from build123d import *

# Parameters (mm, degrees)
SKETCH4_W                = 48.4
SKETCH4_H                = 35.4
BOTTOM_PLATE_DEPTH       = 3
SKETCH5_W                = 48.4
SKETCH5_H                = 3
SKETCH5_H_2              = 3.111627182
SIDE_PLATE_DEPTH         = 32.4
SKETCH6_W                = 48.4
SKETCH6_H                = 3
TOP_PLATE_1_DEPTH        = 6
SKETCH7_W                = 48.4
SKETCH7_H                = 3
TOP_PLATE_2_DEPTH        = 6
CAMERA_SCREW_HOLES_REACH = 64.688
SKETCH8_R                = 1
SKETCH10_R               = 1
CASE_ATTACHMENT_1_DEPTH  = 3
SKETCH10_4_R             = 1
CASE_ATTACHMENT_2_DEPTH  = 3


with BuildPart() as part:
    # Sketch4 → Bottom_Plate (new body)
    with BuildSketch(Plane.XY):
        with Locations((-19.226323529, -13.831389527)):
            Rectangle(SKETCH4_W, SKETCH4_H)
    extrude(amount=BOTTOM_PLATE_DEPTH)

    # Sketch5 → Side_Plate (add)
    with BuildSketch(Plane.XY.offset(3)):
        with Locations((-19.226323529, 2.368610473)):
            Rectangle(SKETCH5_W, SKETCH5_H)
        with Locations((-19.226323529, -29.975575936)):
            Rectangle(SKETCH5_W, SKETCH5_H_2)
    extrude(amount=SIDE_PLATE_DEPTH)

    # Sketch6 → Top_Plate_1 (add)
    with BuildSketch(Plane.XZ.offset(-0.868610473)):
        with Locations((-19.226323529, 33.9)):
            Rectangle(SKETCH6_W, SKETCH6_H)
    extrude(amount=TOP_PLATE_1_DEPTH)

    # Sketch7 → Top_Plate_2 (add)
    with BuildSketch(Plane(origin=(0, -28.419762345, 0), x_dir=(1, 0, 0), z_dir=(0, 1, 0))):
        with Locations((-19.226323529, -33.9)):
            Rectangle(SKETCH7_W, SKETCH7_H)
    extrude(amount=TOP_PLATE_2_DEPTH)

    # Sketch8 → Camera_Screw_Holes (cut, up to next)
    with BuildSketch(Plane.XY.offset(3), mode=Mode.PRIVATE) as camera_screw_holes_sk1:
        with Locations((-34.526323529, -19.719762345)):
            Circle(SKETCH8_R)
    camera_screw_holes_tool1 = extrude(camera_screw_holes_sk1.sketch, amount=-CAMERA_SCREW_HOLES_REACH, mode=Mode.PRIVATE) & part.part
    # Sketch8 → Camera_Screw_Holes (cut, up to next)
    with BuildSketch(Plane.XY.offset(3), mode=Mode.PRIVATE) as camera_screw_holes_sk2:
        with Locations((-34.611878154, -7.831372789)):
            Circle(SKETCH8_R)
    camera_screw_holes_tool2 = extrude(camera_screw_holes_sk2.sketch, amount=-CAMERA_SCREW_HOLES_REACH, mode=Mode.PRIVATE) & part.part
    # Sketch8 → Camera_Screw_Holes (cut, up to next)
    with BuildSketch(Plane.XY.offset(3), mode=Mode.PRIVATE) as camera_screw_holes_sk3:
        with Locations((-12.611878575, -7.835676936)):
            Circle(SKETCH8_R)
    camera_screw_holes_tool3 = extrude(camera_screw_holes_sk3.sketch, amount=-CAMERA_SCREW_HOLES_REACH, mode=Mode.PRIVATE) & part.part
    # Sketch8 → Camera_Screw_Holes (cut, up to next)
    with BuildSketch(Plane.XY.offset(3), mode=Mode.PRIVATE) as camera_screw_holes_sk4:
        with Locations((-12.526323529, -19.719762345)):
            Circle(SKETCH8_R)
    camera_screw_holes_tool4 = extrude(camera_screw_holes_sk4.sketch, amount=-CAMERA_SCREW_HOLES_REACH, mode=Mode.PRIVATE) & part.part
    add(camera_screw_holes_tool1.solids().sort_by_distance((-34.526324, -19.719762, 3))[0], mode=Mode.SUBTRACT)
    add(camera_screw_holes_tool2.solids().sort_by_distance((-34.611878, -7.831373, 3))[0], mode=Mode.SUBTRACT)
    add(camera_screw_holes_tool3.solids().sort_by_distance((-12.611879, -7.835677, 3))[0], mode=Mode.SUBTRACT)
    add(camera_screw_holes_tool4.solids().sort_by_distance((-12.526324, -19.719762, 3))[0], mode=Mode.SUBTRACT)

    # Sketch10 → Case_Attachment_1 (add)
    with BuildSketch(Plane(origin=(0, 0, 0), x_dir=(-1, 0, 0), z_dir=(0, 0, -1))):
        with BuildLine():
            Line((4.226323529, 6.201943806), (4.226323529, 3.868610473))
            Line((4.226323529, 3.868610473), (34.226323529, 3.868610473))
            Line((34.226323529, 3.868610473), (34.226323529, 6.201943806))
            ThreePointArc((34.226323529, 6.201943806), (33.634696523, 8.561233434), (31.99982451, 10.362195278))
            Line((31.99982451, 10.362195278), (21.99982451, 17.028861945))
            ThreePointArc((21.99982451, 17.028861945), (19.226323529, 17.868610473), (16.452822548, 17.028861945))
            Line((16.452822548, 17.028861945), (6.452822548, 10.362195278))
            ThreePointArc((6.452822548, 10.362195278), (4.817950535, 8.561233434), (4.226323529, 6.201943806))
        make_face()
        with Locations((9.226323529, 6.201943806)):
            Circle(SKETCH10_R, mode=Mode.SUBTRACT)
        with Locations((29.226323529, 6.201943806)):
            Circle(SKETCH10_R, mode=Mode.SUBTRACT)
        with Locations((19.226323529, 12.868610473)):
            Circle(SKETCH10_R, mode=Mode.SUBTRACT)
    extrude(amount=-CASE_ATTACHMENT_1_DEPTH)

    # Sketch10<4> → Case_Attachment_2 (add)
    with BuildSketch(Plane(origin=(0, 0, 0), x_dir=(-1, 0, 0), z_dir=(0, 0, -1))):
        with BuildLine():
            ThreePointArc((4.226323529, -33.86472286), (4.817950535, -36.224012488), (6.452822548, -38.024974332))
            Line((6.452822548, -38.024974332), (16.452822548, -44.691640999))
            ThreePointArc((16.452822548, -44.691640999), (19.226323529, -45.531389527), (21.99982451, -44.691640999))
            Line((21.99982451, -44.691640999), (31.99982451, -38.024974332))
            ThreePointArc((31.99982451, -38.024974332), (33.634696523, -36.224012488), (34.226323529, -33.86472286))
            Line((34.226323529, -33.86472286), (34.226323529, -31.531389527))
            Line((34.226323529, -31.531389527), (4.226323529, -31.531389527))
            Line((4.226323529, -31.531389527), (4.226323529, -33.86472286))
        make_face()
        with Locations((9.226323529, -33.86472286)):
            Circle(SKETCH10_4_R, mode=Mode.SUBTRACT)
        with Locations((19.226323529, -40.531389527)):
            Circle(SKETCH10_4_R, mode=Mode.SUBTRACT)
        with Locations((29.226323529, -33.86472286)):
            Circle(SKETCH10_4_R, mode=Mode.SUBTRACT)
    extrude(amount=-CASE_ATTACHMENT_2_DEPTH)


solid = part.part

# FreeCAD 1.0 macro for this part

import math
import FreeCAD as App
import Part
import Sketcher
from FreeCAD import Vector
Q = App.Units.Quantity


def add_polygon(sketch, points):
    """Adds a closed chain of lines whose ends are joined by coincident constraints."""
    first, n = sketch.GeometryCount, len(points)
    for a, b in zip(points, points[1:] + points[:1]):
        sketch.addGeometry(Part.LineSegment(App.Vector(*a, 0), App.Vector(*b, 0)), False)
    for i in range(n):
        sketch.addConstraint(Sketcher.Constraint("Coincident", first + i, 2, first + (i + 1) % n, 1))

doc = App.newDocument("Part")
body = doc.addObject("PartDesign::Body", "Body")

# Sketch on XY plane
sketch1 = body.newObject("Sketcher::SketchObject", "Sketch")
sketch1.AttachmentSupport = (doc.getObject("XY_Plane"), [""])
sketch1.MapMode = "FlatFace"
add_polygon(sketch1, [(-43, 4), (-43, -32), (5, -32), (5, 4)])  # lines 0-3
sketch1.addConstraint([
    Sketcher.Constraint("Vertical", 0),
    Sketcher.Constraint("Horizontal", 1),
    Sketcher.Constraint("Vertical", 2),
    Sketcher.Constraint("Horizontal", 3),
    Sketcher.Constraint("DistanceX", 1, 1, 1, 2, Q("48.4 mm")),
    Sketcher.Constraint("DistanceY", 0, 2, 0, 1, Q("35.4 mm")),
    Sketcher.Constraint("DistanceY", 0, 2, -1, 1, Q("31.53139 mm")),
    Sketcher.Constraint("DistanceX", 0, 2, -1, 1, Q("43.426324 mm")),
])
pad1 = body.newObject("PartDesign::Pad", "Pad")
pad1.Profile = sketch1
pad1.Length = 3

# Sketch on XY plane
sketch2 = body.newObject("Sketcher::SketchObject", "Sketch001")
sketch2.AttachmentSupport = (doc.getObject("XY_Plane"), [""])
sketch2.MapMode = "FlatFace"
sketch2.AttachmentOffset = App.Placement(Vector(0, 0, 3), App.Rotation())
add_polygon(sketch2, [(-43.4, 3.9), (-43.4, 0.9), (5, 0.9), (5, 3.9)])  # lines 0-3
add_polygon(sketch2, [(-43.4, -28.4), (-43.4, -31.5), (5, -31.5), (5, -28.4)])  # lines 4-7
sketch2.addConstraint([
    Sketcher.Constraint("Vertical", 0),
    Sketcher.Constraint("Horizontal", 1),
    Sketcher.Constraint("Vertical", 2),
    Sketcher.Constraint("Horizontal", 3),
    Sketcher.Constraint("Vertical", 4),
    Sketcher.Constraint("Horizontal", 5),
    Sketcher.Constraint("Vertical", 6),
    Sketcher.Constraint("Horizontal", 7),
    Sketcher.Constraint("Vertical", 3, 2, 4, 2),
    Sketcher.Constraint("Vertical", 2, 2, 5, 2),
    Sketcher.Constraint("DistanceY", 0, 2, 0, 1, Q("3 mm")),
    Sketcher.Constraint("DistanceX", 1, 1, 1, 2, Q("48.4 mm")),
    Sketcher.Constraint("DistanceY", 4, 2, 0, 2, Q("32.4 mm")),
    Sketcher.Constraint("DistanceY", 4, 2, 4, 1, Q("3.111627 mm")),
    Sketcher.Constraint("DistanceY", -1, 1, 0, 2, Q("0.86861 mm")),
    Sketcher.Constraint("DistanceX", 0, 2, -1, 1, Q("43.426324 mm")),
])
pad2 = body.newObject("PartDesign::Pad", "Pad001")
pad2.Profile = sketch2
pad2.Length = 32.4

# Sketch on XZ plane
sketch3 = body.newObject("Sketcher::SketchObject", "Sketch002")
sketch3.AttachmentSupport = (doc.getObject("XZ_Plane"), [""])
sketch3.MapMode = "FlatFace"
sketch3.AttachmentOffset = App.Placement(Vector(0, 0, -0.86861), App.Rotation())
add_polygon(sketch3, [(-43.4, 35.4), (-43.4, 32.4), (5, 32.4), (5, 35.4)])  # lines 0-3
sketch3.addConstraint([
    Sketcher.Constraint("Vertical", 0),
    Sketcher.Constraint("Horizontal", 1),
    Sketcher.Constraint("Vertical", 2),
    Sketcher.Constraint("Horizontal", 3),
    Sketcher.Constraint("DistanceY", 0, 2, 0, 1, Q("3 mm")),
    Sketcher.Constraint("DistanceX", 1, 1, 1, 2, Q("48.4 mm")),
    Sketcher.Constraint("DistanceY", -1, 1, 0, 2, Q("32.4 mm")),
    Sketcher.Constraint("DistanceX", 0, 2, -1, 1, Q("43.426324 mm")),
])
pad3 = body.newObject("PartDesign::Pad", "Pad002")
pad3.Profile = sketch3
pad3.Length = 6

# Sketch on XZ plane
sketch4 = body.newObject("Sketcher::SketchObject", "Sketch003")
sketch4.AttachmentSupport = (doc.getObject("XZ_Plane"), [""])
sketch4.MapMode = "FlatFace"
sketch4.AttachmentOffset = App.Placement(Vector(0, 0, 28.419762), App.Rotation())
add_polygon(sketch4, [(-43.4, 32.4), (-43.4, 35.4), (5, 35.4), (5, 32.4)])  # lines 0-3
sketch4.addConstraint([
    Sketcher.Constraint("Vertical", 0),
    Sketcher.Constraint("Horizontal", 1),
    Sketcher.Constraint("Vertical", 2),
    Sketcher.Constraint("Horizontal", 3),
    Sketcher.Constraint("DistanceY", 0, 1, 0, 2, Q("3 mm")),
    Sketcher.Constraint("DistanceX", 1, 1, 1, 2, Q("48.4 mm")),
    Sketcher.Constraint("DistanceY", -1, 1, 0, 2, Q("35.4 mm")),
    Sketcher.Constraint("DistanceX", 0, 2, -1, 1, Q("43.426324 mm")),
])
pad4 = body.newObject("PartDesign::Pad", "Pad003")
pad4.Profile = sketch4
pad4.Length = 6
pad4.Reversed = True

# Sketch on XY plane
sketch5 = body.newObject("Sketcher::SketchObject", "Sketch004")
sketch5.AttachmentSupport = (doc.getObject("XY_Plane"), [""])
sketch5.MapMode = "FlatFace"
sketch5.AttachmentOffset = App.Placement(Vector(0, 0, 3), App.Rotation())
sketch5.addGeometry(Part.Circle(Vector(-34.5, -19.7, 0), Vector(0, 0, 1), 1), False)
sketch5.addConstraint([
    Sketcher.Constraint("Diameter", 0, Q("2 mm")),
    Sketcher.Constraint("DistanceX", 0, 3, -1, 1, Q("34.526324 mm")),
    Sketcher.Constraint("DistanceY", 0, 3, -1, 1, Q("19.719762 mm")),
])
pocket1 = body.newObject("PartDesign::Pocket", "Pocket")
pocket1.Profile = sketch5
pocket1.Type = "UpToFirst"

# Sketch on XY plane
sketch6 = body.newObject("Sketcher::SketchObject", "Sketch005")
sketch6.AttachmentSupport = (doc.getObject("XY_Plane"), [""])
sketch6.MapMode = "FlatFace"
sketch6.AttachmentOffset = App.Placement(Vector(0, 0, 3), App.Rotation())
sketch6.addGeometry(Part.Circle(Vector(-34.6, -7.8, 0), Vector(0, 0, 1), 1), False)
sketch6.addConstraint([
    Sketcher.Constraint("Diameter", 0, Q("2 mm")),
    Sketcher.Constraint("DistanceX", 0, 3, -1, 1, Q("34.611878 mm")),
    Sketcher.Constraint("DistanceY", 0, 3, -1, 1, Q("7.831373 mm")),
])
pocket2 = body.newObject("PartDesign::Pocket", "Pocket001")
pocket2.Profile = sketch6
pocket2.Type = "UpToFirst"

# Sketch on XY plane
sketch7 = body.newObject("Sketcher::SketchObject", "Sketch006")
sketch7.AttachmentSupport = (doc.getObject("XY_Plane"), [""])
sketch7.MapMode = "FlatFace"
sketch7.AttachmentOffset = App.Placement(Vector(0, 0, 3), App.Rotation())
sketch7.addGeometry(Part.Circle(Vector(-12.6, -7.8, 0), Vector(0, 0, 1), 1), False)
sketch7.addConstraint([
    Sketcher.Constraint("Diameter", 0, Q("2 mm")),
    Sketcher.Constraint("DistanceX", 0, 3, -1, 1, Q("12.611879 mm")),
    Sketcher.Constraint("DistanceY", 0, 3, -1, 1, Q("7.835677 mm")),
])
pocket3 = body.newObject("PartDesign::Pocket", "Pocket002")
pocket3.Profile = sketch7
pocket3.Type = "UpToFirst"

# Sketch on XY plane
sketch8 = body.newObject("Sketcher::SketchObject", "Sketch007")
sketch8.AttachmentSupport = (doc.getObject("XY_Plane"), [""])
sketch8.MapMode = "FlatFace"
sketch8.AttachmentOffset = App.Placement(Vector(0, 0, 3), App.Rotation())
sketch8.addGeometry(Part.Circle(Vector(-12.5, -19.7, 0), Vector(0, 0, 1), 1), False)
sketch8.addConstraint([
    Sketcher.Constraint("Diameter", 0, Q("2 mm")),
    Sketcher.Constraint("DistanceX", 0, 3, -1, 1, Q("12.526324 mm")),
    Sketcher.Constraint("DistanceY", 0, 3, -1, 1, Q("19.719762 mm")),
])
pocket4 = body.newObject("PartDesign::Pocket", "Pocket003")
pocket4.Profile = sketch8
pocket4.Type = "UpToFirst"

# Sketch on XY plane
sketch9 = body.newObject("Sketcher::SketchObject", "Sketch008")
sketch9.AttachmentSupport = (doc.getObject("XY_Plane"), [""])
sketch9.MapMode = "FlatFace"
sketch9.addGeometry([
    Part.LineSegment(Vector(-4.2, 6.2, 0), Vector(-4.2, 3.9, 0)),  # 0
    Part.LineSegment(Vector(-4.2, 3.9, 0), Vector(-34.2, 3.9, 0)),  # 1
    Part.LineSegment(Vector(-34.2, 3.9, 0), Vector(-34.2, 6.2, 0)),  # 2
    Part.ArcOfCircle(Part.Circle(Vector(-29.2, 6.2, 0), Vector(0, 0, 1), 5), math.radians(124), math.radians(180)),  # 3
    Part.LineSegment(Vector(-32, 10.4, 0), Vector(-22, 17, 0)),  # 4
    Part.ArcOfCircle(Part.Circle(Vector(-19.2, 12.9, 0), Vector(0, 0, 1), 5), math.radians(56), math.radians(124)),  # 5
    Part.LineSegment(Vector(-16.5, 17, 0), Vector(-6.5, 10.4, 0)),  # 6
    Part.ArcOfCircle(Part.Circle(Vector(-9.2, 6.2, 0), Vector(0, 0, 1), 5), math.radians(0), math.radians(56)),  # 7
    Part.Circle(Vector(-9.2, 6.2, 0), Vector(0, 0, 1), 1),  # 8
    Part.Circle(Vector(-29.2, 6.2, 0), Vector(0, 0, 1), 1),  # 9
    Part.Circle(Vector(-19.2, 12.9, 0), Vector(0, 0, 1), 1),  # 10
], False)
sketch9.addConstraint([
    Sketcher.Constraint("Coincident", 0, 2, 1, 1),
    Sketcher.Constraint("Coincident", 1, 2, 2, 1),
    Sketcher.Constraint("Tangent", 2, 2, 3, 2),
    Sketcher.Constraint("Tangent", 3, 1, 4, 1),
    Sketcher.Constraint("Tangent", 4, 2, 5, 2),
    Sketcher.Constraint("Tangent", 5, 1, 6, 1),
    Sketcher.Constraint("Tangent", 6, 2, 7, 2),
    Sketcher.Constraint("Tangent", 7, 1, 0, 1),
    Sketcher.Constraint("Vertical", 0),
    Sketcher.Constraint("Horizontal", 1),
    Sketcher.Constraint("Vertical", 2),
    Sketcher.Constraint("Coincident", 8, 3, 7, 3),
    Sketcher.Constraint("Coincident", 9, 3, 3, 3),
    Sketcher.Constraint("Coincident", 10, 3, 5, 3),
    Sketcher.Constraint("Equal", 3, 5),
    Sketcher.Constraint("Equal", 5, 7),
    Sketcher.Constraint("Equal", 8, 9),
    Sketcher.Constraint("Equal", 9, 10),
    Sketcher.Constraint("Horizontal", 3, 3, 7, 3),
    Sketcher.Constraint("Horizontal", 4, 2, 5, 1),
    Sketcher.Constraint("Diameter", 8, Q("2 mm")),
    Sketcher.Constraint("Radius", 3, Q("5 mm")),
    Sketcher.Constraint("DistanceX", 1, 2, 1, 1, Q("30 mm")),
    Sketcher.Constraint("DistanceY", 0, 2, 5, 3, Q("9 mm")),
    Sketcher.Constraint("DistanceX", 4, 2, 5, 1, Q("5.547002 mm")),
    Sketcher.Constraint("DistanceY", -1, 1, 5, 3, Q("12.86861 mm")),
    Sketcher.Constraint("DistanceX", 3, 3, -1, 1, Q("29.226324 mm")),
])
pad5 = body.newObject("PartDesign::Pad", "Pad004")
pad5.Profile = sketch9
pad5.Length = 3

# Sketch on XY plane
sketch10 = body.newObject("Sketcher::SketchObject", "Sketch009")
sketch10.AttachmentSupport = (doc.getObject("XY_Plane"), [""])
sketch10.MapMode = "FlatFace"
sketch10.addGeometry([
    Part.ArcOfCircle(Part.Circle(Vector(-9.2, -33.9, 0), Vector(0, 0, 1), 5), math.radians(-56), math.radians(0)),  # 0
    Part.LineSegment(Vector(-6.5, -38, 0), Vector(-16.5, -44.7, 0)),  # 1
    Part.ArcOfCircle(Part.Circle(Vector(-19.2, -40.5, 0), Vector(0, 0, 1), 5), math.radians(-124), math.radians(-56)),  # 2
    Part.LineSegment(Vector(-22, -44.7, 0), Vector(-32, -38, 0)),  # 3
    Part.ArcOfCircle(Part.Circle(Vector(-29.2, -33.9, 0), Vector(0, 0, 1), 5), math.radians(180), math.radians(236)),  # 4
    Part.LineSegment(Vector(-34.2, -33.9, 0), Vector(-34.2, -31.5, 0)),  # 5
    Part.LineSegment(Vector(-34.2, -31.5, 0), Vector(-4.2, -31.5, 0)),  # 6
    Part.LineSegment(Vector(-4.2, -31.5, 0), Vector(-4.2, -33.9, 0)),  # 7
    Part.Circle(Vector(-19.2, -40.5, 0), Vector(0, 0, 1), 1),  # 8
    Part.Circle(Vector(-9.2, -33.9, 0), Vector(0, 0, 1), 1),  # 9
    Part.Circle(Vector(-29.2, -33.9, 0), Vector(0, 0, 1), 1),  # 10
], False)
sketch10.addConstraint([
    Sketcher.Constraint("Tangent", 0, 1, 1, 1),
    Sketcher.Constraint("Tangent", 1, 2, 2, 2),
    Sketcher.Constraint("Tangent", 2, 1, 3, 1),
    Sketcher.Constraint("Tangent", 3, 2, 4, 2),
    Sketcher.Constraint("Tangent", 4, 1, 5, 1),
    Sketcher.Constraint("Coincident", 5, 2, 6, 1),
    Sketcher.Constraint("Coincident", 6, 2, 7, 1),
    Sketcher.Constraint("Tangent", 7, 2, 0, 2),
    Sketcher.Constraint("Vertical", 5),
    Sketcher.Constraint("Horizontal", 6),
    Sketcher.Constraint("Vertical", 7),
    Sketcher.Constraint("Coincident", 8, 3, 2, 3),
    Sketcher.Constraint("Coincident", 9, 3, 0, 3),
    Sketcher.Constraint("Coincident", 10, 3, 4, 3),
    Sketcher.Constraint("Equal", 0, 2),
    Sketcher.Constraint("Equal", 2, 4),
    Sketcher.Constraint("Equal", 8, 9),
    Sketcher.Constraint("Equal", 9, 10),
    Sketcher.Constraint("Horizontal", 0, 3, 4, 3),
    Sketcher.Constraint("Horizontal", 1, 2, 2, 1),
    Sketcher.Constraint("Diameter", 8, Q("2 mm")),
    Sketcher.Constraint("Radius", 0, Q("5 mm")),
    Sketcher.Constraint("DistanceX", 6, 1, 6, 2, Q("30 mm")),
    Sketcher.Constraint("DistanceY", 2, 3, 5, 2, Q("9 mm")),
    Sketcher.Constraint("DistanceX", 2, 1, 1, 2, Q("5.547002 mm")),
    Sketcher.Constraint("DistanceY", 2, 3, -1, 1, Q("40.53139 mm")),
    Sketcher.Constraint("DistanceX", 0, 3, -1, 1, Q("9.226324 mm")),
])
pad6 = body.newObject("PartDesign::Pad", "Pad005")
pad6.Profile = sketch10
pad6.Length = 3

doc.recompute()
